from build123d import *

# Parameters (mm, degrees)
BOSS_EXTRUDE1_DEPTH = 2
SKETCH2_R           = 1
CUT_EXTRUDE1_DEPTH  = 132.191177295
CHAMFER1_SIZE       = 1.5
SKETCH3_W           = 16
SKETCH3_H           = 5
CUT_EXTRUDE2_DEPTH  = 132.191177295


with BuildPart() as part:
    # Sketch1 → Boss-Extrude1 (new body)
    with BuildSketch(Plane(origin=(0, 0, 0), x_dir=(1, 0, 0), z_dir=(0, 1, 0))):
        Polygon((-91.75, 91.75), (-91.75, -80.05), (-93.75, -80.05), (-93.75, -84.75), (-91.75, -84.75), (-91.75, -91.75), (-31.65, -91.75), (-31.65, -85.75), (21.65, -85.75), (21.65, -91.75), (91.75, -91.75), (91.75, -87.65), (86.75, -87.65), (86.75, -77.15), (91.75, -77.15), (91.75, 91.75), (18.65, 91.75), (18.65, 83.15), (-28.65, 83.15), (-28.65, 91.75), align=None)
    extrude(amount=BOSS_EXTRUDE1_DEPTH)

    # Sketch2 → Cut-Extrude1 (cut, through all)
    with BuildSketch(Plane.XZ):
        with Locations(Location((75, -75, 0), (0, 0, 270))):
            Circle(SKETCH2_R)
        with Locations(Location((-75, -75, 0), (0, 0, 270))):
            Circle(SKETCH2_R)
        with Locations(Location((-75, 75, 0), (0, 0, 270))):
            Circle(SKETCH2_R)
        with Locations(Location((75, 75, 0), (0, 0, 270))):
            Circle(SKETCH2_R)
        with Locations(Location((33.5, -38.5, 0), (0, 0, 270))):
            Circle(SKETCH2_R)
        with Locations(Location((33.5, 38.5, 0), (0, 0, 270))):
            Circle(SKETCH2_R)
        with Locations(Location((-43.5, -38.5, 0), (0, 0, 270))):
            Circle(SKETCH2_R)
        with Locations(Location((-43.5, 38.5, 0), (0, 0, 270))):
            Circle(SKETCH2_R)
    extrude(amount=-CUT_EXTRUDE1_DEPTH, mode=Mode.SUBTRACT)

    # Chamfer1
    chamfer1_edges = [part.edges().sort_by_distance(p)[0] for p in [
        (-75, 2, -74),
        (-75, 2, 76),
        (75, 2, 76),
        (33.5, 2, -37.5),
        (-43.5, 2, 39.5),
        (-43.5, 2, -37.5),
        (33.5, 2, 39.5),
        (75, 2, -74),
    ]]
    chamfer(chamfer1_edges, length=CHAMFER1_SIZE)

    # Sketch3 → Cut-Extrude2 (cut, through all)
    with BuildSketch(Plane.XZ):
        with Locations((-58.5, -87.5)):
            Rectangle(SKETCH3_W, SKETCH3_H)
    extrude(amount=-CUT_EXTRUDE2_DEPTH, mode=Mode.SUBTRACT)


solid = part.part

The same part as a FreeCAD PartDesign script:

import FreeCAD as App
import Part
import Sketcher

V = App.Vector
Q = App.Units.Quantity


def edges_at(feature, points):
    """Names of the edges that pass closest to the given points."""
    edges = feature.Shape.Edges
    near = lambda p: min(range(len(edges)), key=lambda i: edges[i].distToShape(Part.Vertex(*p))[0])
    return sorted({f"Edge{near(p) + 1}" for p in points})

doc = App.newDocument("Part")
body = doc.addObject("PartDesign::Body", "Body")

# Sketch on XZ plane
sketch1 = body.newObject("Sketcher::SketchObject", "Sketch")
sketch1.AttachmentSupport = (doc.getObject("XZ_Plane"), [""])
sketch1.MapMode = "FlatFace"
sketch1.addGeometry([
    Part.LineSegment(V(-91.8, -91.8, 0), V(-91.8, 80, 0)),  # 0
    Part.LineSegment(V(-91.8, 80, 0), V(-93.8, 80, 0)),  # 1
    Part.LineSegment(V(-93.8, 80, 0), V(-93.8, 84.8, 0)),  # 2
    Part.LineSegment(V(-93.8, 84.8, 0), V(-91.8, 84.8, 0)),  # 3
    Part.LineSegment(V(-91.8, 84.8, 0), V(-91.8, 91.8, 0)),  # 4
    Part.LineSegment(V(-91.8, 91.8, 0), V(-31.6, 91.8, 0)),  # 5
    Part.LineSegment(V(-31.6, 91.8, 0), V(-31.6, 85.8, 0)),  # 6
    Part.LineSegment(V(-31.6, 85.8, 0), V(21.6, 85.8, 0)),  # 7
    Part.LineSegment(V(21.6, 85.8, 0), V(21.6, 91.8, 0)),  # 8
    Part.LineSegment(V(21.6, 91.8, 0), V(91.8, 91.8, 0)),  # 9
    Part.LineSegment(V(91.8, 91.8, 0), V(91.8, 87.7, 0)),  # 10
    Part.LineSegment(V(91.8, 87.7, 0), V(86.8, 87.7, 0)),  # 11
    Part.LineSegment(V(86.8, 87.7, 0), V(86.8, 77.2, 0)),  # 12
    Part.LineSegment(V(86.8, 77.2, 0), V(91.8, 77.2, 0)),  # 13
    Part.LineSegment(V(91.8, 77.2, 0), V(91.8, -91.8, 0)),  # 14
    Part.LineSegment(V(91.8, -91.8, 0), V(18.6, -91.8, 0)),  # 15
    Part.LineSegment(V(18.6, -91.8, 0), V(18.6, -83.2, 0)),  # 16
    Part.LineSegment(V(18.6, -83.2, 0), V(-28.6, -83.2, 0)),  # 17
    Part.LineSegment(V(-28.6, -83.2, 0), V(-28.6, -91.8, 0)),  # 18
    Part.LineSegment(V(-28.6, -91.8, 0), V(-91.8, -91.8, 0)),  # 19
], False)
sketch1.addConstraint([
    Sketcher.Constraint("Coincident", 0, 2, 1, 1),
    Sketcher.Constraint("Coincident", 1, 2, 2, 1),
    Sketcher.Constraint("Coincident", 2, 2, 3, 1),
    Sketcher.Constraint("Coincident", 3, 2, 4, 1),
    Sketcher.Constraint("Coincident", 4, 2, 5, 1),
    Sketcher.Constraint("Coincident", 5, 2, 6, 1),
    Sketcher.Constraint("Coincident", 6, 2, 7, 1),
    Sketcher.Constraint("Coincident", 7, 2, 8, 1),
    Sketcher.Constraint("Coincident", 8, 2, 9, 1),
    Sketcher.Constraint("Coincident", 9, 2, 10, 1),
    Sketcher.Constraint("Coincident", 10, 2, 11, 1),
    Sketcher.Constraint("Coincident", 11, 2, 12, 1),
    Sketcher.Constraint("Coincident", 12, 2, 13, 1),
    Sketcher.Constraint("Coincident", 13, 2, 14, 1),
    Sketcher.Constraint("Coincident", 14, 2, 15, 1),
    Sketcher.Constraint("Coincident", 15, 2, 16, 1),
    Sketcher.Constraint("Coincident", 16, 2, 17, 1),
    Sketcher.Constraint("Coincident", 17, 2, 18, 1),
    Sketcher.Constraint("Coincident", 18, 2, 19, 1),
    Sketcher.Constraint("Coincident", 19, 2, 0, 1),
    Sketcher.Constraint("Vertical", 0),
    Sketcher.Constraint("Horizontal", 1),
    Sketcher.Constraint("Vertical", 2),
    Sketcher.Constraint("Horizontal", 3),
    Sketcher.Constraint("Vertical", 4),
    Sketcher.Constraint("Horizontal", 5),
    Sketcher.Constraint("Vertical", 6),
    Sketcher.Constraint("Horizontal", 7),
    Sketcher.Constraint("Vertical", 8),
    Sketcher.Constraint("Horizontal", 9),
    Sketcher.Constraint("Vertical", 10),
    Sketcher.Constraint("Horizontal", 11),
    Sketcher.Constraint("Vertical", 12),
    Sketcher.Constraint("Horizontal", 13),
    Sketcher.Constraint("Vertical", 14),
    Sketcher.Constraint("Horizontal", 15),
    Sketcher.Constraint("Vertical", 16),
    Sketcher.Constraint("Horizontal", 17),
    Sketcher.Constraint("Vertical", 18),
    Sketcher.Constraint("Horizontal", 19),
    Sketcher.Constraint("Symmetric", 4, 2, 14, 2, -1, 1),
    Sketcher.Constraint("Symmetric", 9, 2, 19, 2, -1, 1),
    Sketcher.Constraint("Symmetric", 4, 2, 9, 2, -2),
    Sketcher.Constraint("DistanceX", 1, 2, 1, 1, Q("2 mm")),
    Sketcher.Constraint("DistanceX", 11, 2, 11, 1, Q("5 mm")),
    Sketcher.Constraint("DistanceY", 4, 1, 4, 2, Q("7 mm")),
    Sketcher.Constraint("DistanceY", 6, 2, 6, 1, Q("6 mm")),
    Sketcher.Constraint("DistanceX", 5, 1, 5, 2, Q("60.1 mm")),
    Sketcher.Constraint("DistanceX", 7, 1, 7, 2, Q("53.3 mm")),
    Sketcher.Constraint("DistanceX", 9, 1, 9, 2, Q("70.1 mm")),
    Sketcher.Constraint("DistanceX", 15, 2, 15, 1, Q("73.1 mm")),
    Sketcher.Constraint("DistanceX", 17, 2, 17, 1, Q("47.3 mm")),
    Sketcher.Constraint("DistanceY", 0, 1, 0, 2, Q("171.8 mm")),
    Sketcher.Constraint("DistanceY", 2, 1, 2, 2, Q("4.7 mm")),
    Sketcher.Constraint("DistanceY", 10, 2, 10, 1, Q("4.1 mm")),
    Sketcher.Constraint("DistanceY", 12, 2, 12, 1, Q("10.5 mm")),
    Sketcher.Constraint("DistanceY", 16, 1, 16, 2, Q("8.6 mm")),
])
pad1 = body.newObject("PartDesign::Pad", "Pad")
pad1.Profile = sketch1
pad1.Length = 2
pad1.Reversed = True

# Sketch on XZ plane
sketch2 = body.newObject("Sketcher::SketchObject", "Sketch001")
sketch2.AttachmentSupport = (doc.getObject("XZ_Plane"), [""])
sketch2.MapMode = "FlatFace"
sketch2.addGeometry([
    Part.Circle(V(75, -75, 0), V(0, 0, 1), 1),  # 0
    Part.Circle(V(-75, -75, 0), V(0, 0, 1), 1),  # 1
    Part.Circle(V(-75, 75, 0), V(0, 0, 1), 1),  # 2
    Part.Circle(V(75, 75, 0), V(0, 0, 1), 1),  # 3
    Part.Circle(V(33.5, -38.5, 0), V(0, 0, 1), 1),  # 4
    Part.Circle(V(33.5, 38.5, 0), V(0, 0, 1), 1),  # 5
    Part.Circle(V(-43.5, -38.5, 0), V(0, 0, 1), 1),  # 6
    Part.Circle(V(-43.5, 38.5, 0), V(0, 0, 1), 1),  # 7
], False)
sketch2.addConstraint([
    Sketcher.Constraint("Equal", 0, 1),
    Sketcher.Constraint("Equal", 1, 2),
    Sketcher.Constraint("Equal", 2, 3),
    Sketcher.Constraint("Equal", 3, 4),
    Sketcher.Constraint("Equal", 4, 5),
    Sketcher.Constraint("Equal", 5, 6),
    Sketcher.Constraint("Equal", 6, 7),
    Sketcher.Constraint("Symmetric", 0, 3, 2, 3, -1, 1),
    Sketcher.Constraint("Symmetric", 1, 3, 3, 3, -1, 1),
    Sketcher.Constraint("Symmetric", 0, 3, 1, 3, -2),
    Sketcher.Constraint("Symmetric", 4, 3, 5, 3, -1),
    Sketcher.Constraint("Symmetric", 6, 3, 7, 3, -1),
    Sketcher.Constraint("Horizontal", 4, 3, 6, 3),
    Sketcher.Constraint("Diameter", 0, Q("2 mm")),
    Sketcher.Constraint("DistanceX", -1, 1, 0, 3, Q("75 mm")),
    Sketcher.Constraint("DistanceY", 0, 3, -1, 1, Q("75 mm")),
    Sketcher.Constraint("DistanceY", 4, 3, 5, 3, Q("77 mm")),
    Sketcher.Constraint("DistanceX", 6, 3, 4, 3, Q("77 mm")),
    Sketcher.Constraint("DistanceX", -1, 1, 4, 3, Q("33.5 mm")),
])
pocket1 = body.newObject("PartDesign::Pocket", "Pocket")
pocket1.Profile = sketch2
pocket1.Type = "ThroughAll"
doc.recompute()

chamfer = body.newObject("PartDesign::Chamfer", "Chamfer")
chamfer.Base = (pocket1, edges_at(pocket1, [
    (-75, 2, -74),
    (-75, 2, 76),
    (75, 2, 76),
    (33.5, 2, -37.5),
    (-43.5, 2, 39.5),
    (-43.5, 2, -37.5),
    (33.5, 2, 39.5),
    (75, 2, -74),
]))
chamfer.Size = 1.5

# Sketch on XZ plane
sketch3 = body.newObject("Sketcher::SketchObject", "Sketch002")
sketch3.AttachmentSupport = (doc.getObject("XZ_Plane"), [""])
sketch3.MapMode = "FlatFace"
sketch3.addGeometry([
    Part.LineSegment(V(-66, -85, 0), V(-66, -90, 0)),
    Part.LineSegment(V(-66, -90, 0), V(-50, -90, 0)),
    Part.LineSegment(V(-50, -90, 0), V(-50, -85, 0)),
    Part.LineSegment(V(-50, -85, 0), V(-66, -85, 0)),
], False)
sketch3.addConstraint([
    Sketcher.Constraint("Coincident", 0, 2, 1, 1),
    Sketcher.Constraint("Coincident", 1, 2, 2, 1),
    Sketcher.Constraint("Coincident", 2, 2, 3, 1),
    Sketcher.Constraint("Coincident", 3, 2, 0, 1),
    Sketcher.Constraint("Vertical", 0),
    Sketcher.Constraint("Horizontal", 1),
    Sketcher.Constraint("Vertical", 2),
    Sketcher.Constraint("Horizontal", 3),
    Sketcher.Constraint("DistanceX", 1, 1, 1, 2, Q("16 mm")),
    Sketcher.Constraint("DistanceY", 0, 2, 0, 1, Q("5 mm")),
    Sketcher.Constraint("DistanceY", 0, 2, -1, 1, Q("90 mm")),
    Sketcher.Constraint("DistanceX", 0, 2, -1, 1, Q("66.5 mm")),
])
pocket2 = body.newObject("PartDesign::Pocket", "Pocket001")
pocket2.Profile = sketch3
pocket2.Type = "ThroughAll"

doc.recompute()
